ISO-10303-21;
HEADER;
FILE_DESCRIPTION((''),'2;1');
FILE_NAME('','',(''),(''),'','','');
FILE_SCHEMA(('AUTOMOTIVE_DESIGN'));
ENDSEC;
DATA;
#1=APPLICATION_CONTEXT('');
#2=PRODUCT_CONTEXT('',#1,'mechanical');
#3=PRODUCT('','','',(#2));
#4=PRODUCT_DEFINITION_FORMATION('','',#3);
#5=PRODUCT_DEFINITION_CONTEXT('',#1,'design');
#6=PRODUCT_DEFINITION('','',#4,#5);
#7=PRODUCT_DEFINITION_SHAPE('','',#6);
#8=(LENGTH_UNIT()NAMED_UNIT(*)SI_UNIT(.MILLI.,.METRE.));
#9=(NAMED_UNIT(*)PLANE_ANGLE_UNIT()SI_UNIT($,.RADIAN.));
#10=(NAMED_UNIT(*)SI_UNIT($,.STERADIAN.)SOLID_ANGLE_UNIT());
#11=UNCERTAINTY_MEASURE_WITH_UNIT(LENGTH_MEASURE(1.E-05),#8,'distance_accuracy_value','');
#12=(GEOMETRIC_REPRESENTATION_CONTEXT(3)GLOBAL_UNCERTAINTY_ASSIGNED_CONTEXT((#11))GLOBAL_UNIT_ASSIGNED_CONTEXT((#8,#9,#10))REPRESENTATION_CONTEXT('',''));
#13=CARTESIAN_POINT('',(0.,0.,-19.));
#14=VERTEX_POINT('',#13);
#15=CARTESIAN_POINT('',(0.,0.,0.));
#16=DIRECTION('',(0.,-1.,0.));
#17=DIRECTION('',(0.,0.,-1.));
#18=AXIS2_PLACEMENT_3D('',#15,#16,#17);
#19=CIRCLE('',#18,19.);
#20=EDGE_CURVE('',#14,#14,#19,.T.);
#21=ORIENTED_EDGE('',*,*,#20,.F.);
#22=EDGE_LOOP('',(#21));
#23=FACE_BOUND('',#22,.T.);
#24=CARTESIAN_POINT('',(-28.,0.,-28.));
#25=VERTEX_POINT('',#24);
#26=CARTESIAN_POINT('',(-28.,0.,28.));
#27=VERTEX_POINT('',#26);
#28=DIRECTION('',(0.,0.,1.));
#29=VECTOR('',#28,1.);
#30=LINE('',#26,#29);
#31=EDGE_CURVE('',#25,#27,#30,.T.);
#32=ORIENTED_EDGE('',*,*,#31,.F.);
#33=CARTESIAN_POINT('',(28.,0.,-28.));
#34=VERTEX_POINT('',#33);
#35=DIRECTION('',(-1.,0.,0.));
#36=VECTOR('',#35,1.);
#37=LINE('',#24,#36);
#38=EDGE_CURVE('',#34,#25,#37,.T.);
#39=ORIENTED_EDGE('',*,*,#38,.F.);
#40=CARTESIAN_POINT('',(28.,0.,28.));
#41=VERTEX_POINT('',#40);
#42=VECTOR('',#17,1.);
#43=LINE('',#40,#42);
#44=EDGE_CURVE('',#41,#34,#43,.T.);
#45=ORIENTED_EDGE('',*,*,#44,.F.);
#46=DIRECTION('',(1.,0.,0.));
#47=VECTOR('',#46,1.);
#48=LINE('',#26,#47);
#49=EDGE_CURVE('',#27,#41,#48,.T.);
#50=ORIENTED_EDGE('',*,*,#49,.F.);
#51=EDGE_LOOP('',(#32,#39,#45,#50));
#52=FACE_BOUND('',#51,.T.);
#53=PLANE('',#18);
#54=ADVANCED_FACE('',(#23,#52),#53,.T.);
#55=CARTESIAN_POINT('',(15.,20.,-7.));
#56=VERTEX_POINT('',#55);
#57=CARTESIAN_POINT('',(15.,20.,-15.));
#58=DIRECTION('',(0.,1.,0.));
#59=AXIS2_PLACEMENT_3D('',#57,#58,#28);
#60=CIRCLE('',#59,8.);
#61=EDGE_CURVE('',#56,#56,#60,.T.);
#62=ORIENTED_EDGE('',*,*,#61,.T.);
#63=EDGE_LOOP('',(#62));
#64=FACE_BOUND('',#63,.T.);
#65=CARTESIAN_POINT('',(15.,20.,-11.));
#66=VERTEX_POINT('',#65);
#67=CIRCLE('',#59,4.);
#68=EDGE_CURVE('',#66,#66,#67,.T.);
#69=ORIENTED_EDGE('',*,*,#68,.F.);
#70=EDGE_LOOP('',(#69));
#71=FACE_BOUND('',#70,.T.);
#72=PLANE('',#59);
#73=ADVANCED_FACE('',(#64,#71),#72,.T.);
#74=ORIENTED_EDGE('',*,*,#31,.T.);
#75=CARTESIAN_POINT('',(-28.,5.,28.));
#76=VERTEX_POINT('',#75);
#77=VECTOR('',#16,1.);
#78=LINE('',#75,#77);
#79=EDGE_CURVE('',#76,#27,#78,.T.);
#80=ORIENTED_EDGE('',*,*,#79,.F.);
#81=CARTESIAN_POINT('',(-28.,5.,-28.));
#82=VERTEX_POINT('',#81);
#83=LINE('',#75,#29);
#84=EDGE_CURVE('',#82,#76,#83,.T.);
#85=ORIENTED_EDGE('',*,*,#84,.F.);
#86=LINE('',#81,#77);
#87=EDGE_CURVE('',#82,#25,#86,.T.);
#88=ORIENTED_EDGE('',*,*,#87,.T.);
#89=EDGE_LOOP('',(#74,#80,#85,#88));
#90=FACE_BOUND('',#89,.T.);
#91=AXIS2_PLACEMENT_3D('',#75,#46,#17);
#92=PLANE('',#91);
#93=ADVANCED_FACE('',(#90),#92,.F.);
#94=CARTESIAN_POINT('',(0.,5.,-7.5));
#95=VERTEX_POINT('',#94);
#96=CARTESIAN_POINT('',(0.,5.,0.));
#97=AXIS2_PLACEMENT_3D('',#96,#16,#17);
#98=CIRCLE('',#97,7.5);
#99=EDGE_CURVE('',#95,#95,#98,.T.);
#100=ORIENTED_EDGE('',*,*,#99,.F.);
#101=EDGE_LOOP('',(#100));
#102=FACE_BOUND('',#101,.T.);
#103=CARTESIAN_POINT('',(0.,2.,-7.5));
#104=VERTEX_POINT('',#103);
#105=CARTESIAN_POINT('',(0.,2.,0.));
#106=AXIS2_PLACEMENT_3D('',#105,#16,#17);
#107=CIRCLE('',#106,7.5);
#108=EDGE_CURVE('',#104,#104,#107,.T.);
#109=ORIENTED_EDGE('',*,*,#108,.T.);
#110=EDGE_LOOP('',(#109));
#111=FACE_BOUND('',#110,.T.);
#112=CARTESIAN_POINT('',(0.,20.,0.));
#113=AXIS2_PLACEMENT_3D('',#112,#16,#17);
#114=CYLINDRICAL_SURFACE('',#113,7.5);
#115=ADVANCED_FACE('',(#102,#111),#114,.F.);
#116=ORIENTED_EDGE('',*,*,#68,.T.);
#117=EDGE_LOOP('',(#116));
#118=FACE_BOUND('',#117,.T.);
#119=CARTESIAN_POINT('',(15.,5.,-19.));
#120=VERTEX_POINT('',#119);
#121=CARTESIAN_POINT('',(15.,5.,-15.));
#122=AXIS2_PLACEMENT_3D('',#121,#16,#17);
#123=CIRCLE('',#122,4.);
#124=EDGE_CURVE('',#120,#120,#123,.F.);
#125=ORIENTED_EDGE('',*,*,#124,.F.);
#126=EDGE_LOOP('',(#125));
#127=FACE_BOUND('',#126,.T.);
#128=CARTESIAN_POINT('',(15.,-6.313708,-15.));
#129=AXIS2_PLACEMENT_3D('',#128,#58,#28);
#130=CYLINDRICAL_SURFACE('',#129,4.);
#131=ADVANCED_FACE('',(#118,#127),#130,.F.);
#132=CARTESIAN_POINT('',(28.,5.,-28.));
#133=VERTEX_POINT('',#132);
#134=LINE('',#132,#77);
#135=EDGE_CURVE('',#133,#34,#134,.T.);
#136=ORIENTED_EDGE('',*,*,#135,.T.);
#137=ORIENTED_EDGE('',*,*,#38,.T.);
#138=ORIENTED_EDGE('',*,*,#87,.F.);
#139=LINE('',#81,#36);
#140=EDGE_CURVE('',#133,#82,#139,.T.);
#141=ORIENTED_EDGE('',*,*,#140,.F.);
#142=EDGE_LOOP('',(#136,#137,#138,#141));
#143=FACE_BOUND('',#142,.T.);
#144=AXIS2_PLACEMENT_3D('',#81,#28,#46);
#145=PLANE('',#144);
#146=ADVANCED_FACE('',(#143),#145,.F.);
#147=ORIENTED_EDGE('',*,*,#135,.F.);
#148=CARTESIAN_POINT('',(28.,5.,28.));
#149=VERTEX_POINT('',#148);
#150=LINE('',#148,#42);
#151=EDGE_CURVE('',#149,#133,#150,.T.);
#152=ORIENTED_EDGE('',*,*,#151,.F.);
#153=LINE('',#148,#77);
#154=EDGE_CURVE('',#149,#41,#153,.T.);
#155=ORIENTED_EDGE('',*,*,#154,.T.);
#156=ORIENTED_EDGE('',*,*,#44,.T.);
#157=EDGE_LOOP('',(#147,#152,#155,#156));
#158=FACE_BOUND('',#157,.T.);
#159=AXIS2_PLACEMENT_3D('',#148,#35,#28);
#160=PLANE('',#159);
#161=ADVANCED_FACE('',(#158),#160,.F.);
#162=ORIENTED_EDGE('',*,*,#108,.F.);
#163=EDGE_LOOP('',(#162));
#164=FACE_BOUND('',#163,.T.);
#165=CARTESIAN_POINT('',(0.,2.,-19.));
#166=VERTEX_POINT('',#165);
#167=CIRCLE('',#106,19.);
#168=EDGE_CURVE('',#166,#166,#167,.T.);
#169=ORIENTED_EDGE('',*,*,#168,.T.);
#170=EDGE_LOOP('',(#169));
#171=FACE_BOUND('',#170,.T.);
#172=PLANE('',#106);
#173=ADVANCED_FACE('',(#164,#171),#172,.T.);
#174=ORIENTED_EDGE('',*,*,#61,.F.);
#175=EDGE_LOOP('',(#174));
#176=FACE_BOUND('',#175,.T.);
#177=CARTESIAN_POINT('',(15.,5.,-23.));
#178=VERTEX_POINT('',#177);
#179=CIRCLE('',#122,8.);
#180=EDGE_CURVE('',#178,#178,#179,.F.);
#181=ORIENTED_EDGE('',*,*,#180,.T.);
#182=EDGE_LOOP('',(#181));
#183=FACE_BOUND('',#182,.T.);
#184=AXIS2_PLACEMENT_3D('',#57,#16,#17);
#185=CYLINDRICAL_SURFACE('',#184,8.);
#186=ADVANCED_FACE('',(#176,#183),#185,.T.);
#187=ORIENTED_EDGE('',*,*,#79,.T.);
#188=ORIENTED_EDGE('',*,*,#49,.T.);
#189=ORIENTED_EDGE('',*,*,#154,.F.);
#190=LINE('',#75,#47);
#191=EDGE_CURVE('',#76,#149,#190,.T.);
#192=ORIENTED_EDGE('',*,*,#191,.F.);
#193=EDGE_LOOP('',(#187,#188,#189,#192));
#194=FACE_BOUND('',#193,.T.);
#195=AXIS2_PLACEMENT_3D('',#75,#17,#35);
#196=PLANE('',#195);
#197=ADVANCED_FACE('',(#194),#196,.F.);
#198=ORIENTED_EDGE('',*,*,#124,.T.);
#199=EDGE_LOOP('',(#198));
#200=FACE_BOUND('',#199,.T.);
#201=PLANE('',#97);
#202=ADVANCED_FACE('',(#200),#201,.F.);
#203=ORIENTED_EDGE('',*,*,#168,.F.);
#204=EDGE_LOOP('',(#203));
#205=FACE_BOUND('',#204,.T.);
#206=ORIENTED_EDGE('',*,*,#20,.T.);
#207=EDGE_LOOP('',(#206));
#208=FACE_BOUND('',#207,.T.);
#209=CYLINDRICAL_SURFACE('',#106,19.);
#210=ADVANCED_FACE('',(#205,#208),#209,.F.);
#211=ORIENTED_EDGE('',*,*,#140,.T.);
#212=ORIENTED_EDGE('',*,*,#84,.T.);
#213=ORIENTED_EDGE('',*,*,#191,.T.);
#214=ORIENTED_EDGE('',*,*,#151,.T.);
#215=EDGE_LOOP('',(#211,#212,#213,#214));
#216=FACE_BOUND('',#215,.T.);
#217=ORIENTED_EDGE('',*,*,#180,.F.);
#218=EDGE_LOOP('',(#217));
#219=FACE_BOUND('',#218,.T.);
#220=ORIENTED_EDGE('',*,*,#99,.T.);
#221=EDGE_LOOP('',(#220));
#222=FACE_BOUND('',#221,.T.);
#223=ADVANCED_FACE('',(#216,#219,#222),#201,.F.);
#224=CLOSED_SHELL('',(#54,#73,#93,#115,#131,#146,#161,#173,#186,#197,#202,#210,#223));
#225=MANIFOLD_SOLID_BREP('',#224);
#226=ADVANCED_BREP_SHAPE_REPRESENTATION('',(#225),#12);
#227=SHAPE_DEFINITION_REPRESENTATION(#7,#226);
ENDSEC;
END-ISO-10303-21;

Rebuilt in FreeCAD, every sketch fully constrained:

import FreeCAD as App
import Part
import Sketcher

V = App.Vector

doc = App.newDocument("Part")
body = doc.addObject("PartDesign::Body", "Body")

# Sketch on XZ plane
sketch1 = body.newObject("Sketcher::SketchObject", "Sketch")
sketch1.AttachmentSupport = (doc.getObject("XZ_Plane"), [""])
sketch1.MapMode = "FlatFace"
sketch1.addGeometry([
    Part.LineSegment(V(-28, -28, 0), V(-28, 28, 0)),
    Part.LineSegment(V(-28, 28, 0), V(28, 28, 0)),
    Part.LineSegment(V(28, 28, 0), V(28, -28, 0)),
    Part.LineSegment(V(28, -28, 0), V(-28, -28, 0)),
], False)
sketch1.addConstraint([
    Sketcher.Constraint("Coincident", 0, 2, 1, 1),
    Sketcher.Constraint("Coincident", 1, 2, 2, 1),
    Sketcher.Constraint("Coincident", 2, 2, 3, 1),
    Sketcher.Constraint("Coincident", 3, 2, 0, 1),
    Sketcher.Constraint("Vertical", 0),
    Sketcher.Constraint("Horizontal", 1),
    Sketcher.Constraint("Vertical", 2),
    Sketcher.Constraint("Horizontal", 3),
    Sketcher.Constraint("Symmetric", 0, 2, 2, 2, -1, 1),
    Sketcher.Constraint("Equal", 3, 0),
    Sketcher.Constraint("DistanceX", 1, 1, 1, 2, 56.0),
])
pad1 = body.newObject("PartDesign::Pad", "Pad")
pad1.Profile = sketch1
pad1.Length = 5
pad1.Reversed = True

# Sketch on XZ plane
sketch2 = body.newObject("Sketcher::SketchObject", "Sketch001")
sketch2.AttachmentSupport = (doc.getObject("XZ_Plane"), [""])
sketch2.MapMode = "FlatFace"
sketch2.AttachmentOffset = App.Placement(V(0, 0, -5), App.Rotation())
sketch2.addGeometry(Part.Circle(V(15, -15, 0), V(0, 0, 1), 8), False)
sketch2.addConstraint([
    Sketcher.Constraint("Diameter", 0, 16.0),
    Sketcher.Constraint("DistanceX", -1, 1, 0, 3, 15.0),
    Sketcher.Constraint("DistanceY", 0, 3, -1, 1, 15.0),
])
pad2 = body.newObject("PartDesign::Pad", "Pad001")
pad2.Profile = sketch2
pad2.Length = 15
pad2.Reversed = True

# Sketch on XZ plane
sketch3 = body.newObject("Sketcher::SketchObject", "Sketch002")
sketch3.AttachmentSupport = (doc.getObject("XZ_Plane"), [""])
sketch3.MapMode = "FlatFace"
sketch3.addGeometry(Part.Circle(V(0, 0, 0), V(0, 0, 1), 19), False)
sketch3.addConstraint([
    Sketcher.Constraint("Coincident", 0, 3, -1, 1),
    Sketcher.Constraint("Diameter", 0, 38.0),
])
pocket1 = body.newObject("PartDesign::Pocket", "Pocket")
pocket1.Profile = sketch3
pocket1.Length = 2

# Sketch on XZ plane
sketch4 = body.newObject("Sketcher::SketchObject", "Sketch003")
sketch4.AttachmentSupport = (doc.getObject("XZ_Plane"), [""])
sketch4.MapMode = "FlatFace"
sketch4.AttachmentOffset = App.Placement(V(0, 0, -2), App.Rotation())
sketch4.addGeometry(Part.Circle(V(0, 0, 0), V(0, 0, 1), 7.5), False)
sketch4.addConstraint([
    Sketcher.Constraint("Coincident", 0, 3, -1, 1),
    Sketcher.Constraint("Diameter", 0, 15.0),
])
pocket2 = body.newObject("PartDesign::Pocket", "Pocket001")
pocket2.Profile = sketch4
pocket2.Type = "ThroughAll"
pocket2.Midplane = True

# Sketch on XZ plane
sketch5 = body.newObject("Sketcher::SketchObject", "Sketch004")
sketch5.AttachmentSupport = (doc.getObject("XZ_Plane"), [""])
sketch5.MapMode = "FlatFace"
sketch5.AttachmentOffset = App.Placement(V(0, 0, -20), App.Rotation())
sketch5.addGeometry(Part.Circle(V(15, -15, 0), V(0, 0, 1), 4), False)
sketch5.addConstraint([
    Sketcher.Constraint("Diameter", 0, 8.0),
    Sketcher.Constraint("DistanceX", -1, 1, 0, 3, 15.0),
    Sketcher.Constraint("DistanceY", 0, 3, -1, 1, 15.0),
])
pocket3 = body.newObject("PartDesign::Pocket", "Pocket002")
pocket3.Profile = sketch5
pocket3.Length = 15
pocket3.Reversed = True

doc.recompute()
